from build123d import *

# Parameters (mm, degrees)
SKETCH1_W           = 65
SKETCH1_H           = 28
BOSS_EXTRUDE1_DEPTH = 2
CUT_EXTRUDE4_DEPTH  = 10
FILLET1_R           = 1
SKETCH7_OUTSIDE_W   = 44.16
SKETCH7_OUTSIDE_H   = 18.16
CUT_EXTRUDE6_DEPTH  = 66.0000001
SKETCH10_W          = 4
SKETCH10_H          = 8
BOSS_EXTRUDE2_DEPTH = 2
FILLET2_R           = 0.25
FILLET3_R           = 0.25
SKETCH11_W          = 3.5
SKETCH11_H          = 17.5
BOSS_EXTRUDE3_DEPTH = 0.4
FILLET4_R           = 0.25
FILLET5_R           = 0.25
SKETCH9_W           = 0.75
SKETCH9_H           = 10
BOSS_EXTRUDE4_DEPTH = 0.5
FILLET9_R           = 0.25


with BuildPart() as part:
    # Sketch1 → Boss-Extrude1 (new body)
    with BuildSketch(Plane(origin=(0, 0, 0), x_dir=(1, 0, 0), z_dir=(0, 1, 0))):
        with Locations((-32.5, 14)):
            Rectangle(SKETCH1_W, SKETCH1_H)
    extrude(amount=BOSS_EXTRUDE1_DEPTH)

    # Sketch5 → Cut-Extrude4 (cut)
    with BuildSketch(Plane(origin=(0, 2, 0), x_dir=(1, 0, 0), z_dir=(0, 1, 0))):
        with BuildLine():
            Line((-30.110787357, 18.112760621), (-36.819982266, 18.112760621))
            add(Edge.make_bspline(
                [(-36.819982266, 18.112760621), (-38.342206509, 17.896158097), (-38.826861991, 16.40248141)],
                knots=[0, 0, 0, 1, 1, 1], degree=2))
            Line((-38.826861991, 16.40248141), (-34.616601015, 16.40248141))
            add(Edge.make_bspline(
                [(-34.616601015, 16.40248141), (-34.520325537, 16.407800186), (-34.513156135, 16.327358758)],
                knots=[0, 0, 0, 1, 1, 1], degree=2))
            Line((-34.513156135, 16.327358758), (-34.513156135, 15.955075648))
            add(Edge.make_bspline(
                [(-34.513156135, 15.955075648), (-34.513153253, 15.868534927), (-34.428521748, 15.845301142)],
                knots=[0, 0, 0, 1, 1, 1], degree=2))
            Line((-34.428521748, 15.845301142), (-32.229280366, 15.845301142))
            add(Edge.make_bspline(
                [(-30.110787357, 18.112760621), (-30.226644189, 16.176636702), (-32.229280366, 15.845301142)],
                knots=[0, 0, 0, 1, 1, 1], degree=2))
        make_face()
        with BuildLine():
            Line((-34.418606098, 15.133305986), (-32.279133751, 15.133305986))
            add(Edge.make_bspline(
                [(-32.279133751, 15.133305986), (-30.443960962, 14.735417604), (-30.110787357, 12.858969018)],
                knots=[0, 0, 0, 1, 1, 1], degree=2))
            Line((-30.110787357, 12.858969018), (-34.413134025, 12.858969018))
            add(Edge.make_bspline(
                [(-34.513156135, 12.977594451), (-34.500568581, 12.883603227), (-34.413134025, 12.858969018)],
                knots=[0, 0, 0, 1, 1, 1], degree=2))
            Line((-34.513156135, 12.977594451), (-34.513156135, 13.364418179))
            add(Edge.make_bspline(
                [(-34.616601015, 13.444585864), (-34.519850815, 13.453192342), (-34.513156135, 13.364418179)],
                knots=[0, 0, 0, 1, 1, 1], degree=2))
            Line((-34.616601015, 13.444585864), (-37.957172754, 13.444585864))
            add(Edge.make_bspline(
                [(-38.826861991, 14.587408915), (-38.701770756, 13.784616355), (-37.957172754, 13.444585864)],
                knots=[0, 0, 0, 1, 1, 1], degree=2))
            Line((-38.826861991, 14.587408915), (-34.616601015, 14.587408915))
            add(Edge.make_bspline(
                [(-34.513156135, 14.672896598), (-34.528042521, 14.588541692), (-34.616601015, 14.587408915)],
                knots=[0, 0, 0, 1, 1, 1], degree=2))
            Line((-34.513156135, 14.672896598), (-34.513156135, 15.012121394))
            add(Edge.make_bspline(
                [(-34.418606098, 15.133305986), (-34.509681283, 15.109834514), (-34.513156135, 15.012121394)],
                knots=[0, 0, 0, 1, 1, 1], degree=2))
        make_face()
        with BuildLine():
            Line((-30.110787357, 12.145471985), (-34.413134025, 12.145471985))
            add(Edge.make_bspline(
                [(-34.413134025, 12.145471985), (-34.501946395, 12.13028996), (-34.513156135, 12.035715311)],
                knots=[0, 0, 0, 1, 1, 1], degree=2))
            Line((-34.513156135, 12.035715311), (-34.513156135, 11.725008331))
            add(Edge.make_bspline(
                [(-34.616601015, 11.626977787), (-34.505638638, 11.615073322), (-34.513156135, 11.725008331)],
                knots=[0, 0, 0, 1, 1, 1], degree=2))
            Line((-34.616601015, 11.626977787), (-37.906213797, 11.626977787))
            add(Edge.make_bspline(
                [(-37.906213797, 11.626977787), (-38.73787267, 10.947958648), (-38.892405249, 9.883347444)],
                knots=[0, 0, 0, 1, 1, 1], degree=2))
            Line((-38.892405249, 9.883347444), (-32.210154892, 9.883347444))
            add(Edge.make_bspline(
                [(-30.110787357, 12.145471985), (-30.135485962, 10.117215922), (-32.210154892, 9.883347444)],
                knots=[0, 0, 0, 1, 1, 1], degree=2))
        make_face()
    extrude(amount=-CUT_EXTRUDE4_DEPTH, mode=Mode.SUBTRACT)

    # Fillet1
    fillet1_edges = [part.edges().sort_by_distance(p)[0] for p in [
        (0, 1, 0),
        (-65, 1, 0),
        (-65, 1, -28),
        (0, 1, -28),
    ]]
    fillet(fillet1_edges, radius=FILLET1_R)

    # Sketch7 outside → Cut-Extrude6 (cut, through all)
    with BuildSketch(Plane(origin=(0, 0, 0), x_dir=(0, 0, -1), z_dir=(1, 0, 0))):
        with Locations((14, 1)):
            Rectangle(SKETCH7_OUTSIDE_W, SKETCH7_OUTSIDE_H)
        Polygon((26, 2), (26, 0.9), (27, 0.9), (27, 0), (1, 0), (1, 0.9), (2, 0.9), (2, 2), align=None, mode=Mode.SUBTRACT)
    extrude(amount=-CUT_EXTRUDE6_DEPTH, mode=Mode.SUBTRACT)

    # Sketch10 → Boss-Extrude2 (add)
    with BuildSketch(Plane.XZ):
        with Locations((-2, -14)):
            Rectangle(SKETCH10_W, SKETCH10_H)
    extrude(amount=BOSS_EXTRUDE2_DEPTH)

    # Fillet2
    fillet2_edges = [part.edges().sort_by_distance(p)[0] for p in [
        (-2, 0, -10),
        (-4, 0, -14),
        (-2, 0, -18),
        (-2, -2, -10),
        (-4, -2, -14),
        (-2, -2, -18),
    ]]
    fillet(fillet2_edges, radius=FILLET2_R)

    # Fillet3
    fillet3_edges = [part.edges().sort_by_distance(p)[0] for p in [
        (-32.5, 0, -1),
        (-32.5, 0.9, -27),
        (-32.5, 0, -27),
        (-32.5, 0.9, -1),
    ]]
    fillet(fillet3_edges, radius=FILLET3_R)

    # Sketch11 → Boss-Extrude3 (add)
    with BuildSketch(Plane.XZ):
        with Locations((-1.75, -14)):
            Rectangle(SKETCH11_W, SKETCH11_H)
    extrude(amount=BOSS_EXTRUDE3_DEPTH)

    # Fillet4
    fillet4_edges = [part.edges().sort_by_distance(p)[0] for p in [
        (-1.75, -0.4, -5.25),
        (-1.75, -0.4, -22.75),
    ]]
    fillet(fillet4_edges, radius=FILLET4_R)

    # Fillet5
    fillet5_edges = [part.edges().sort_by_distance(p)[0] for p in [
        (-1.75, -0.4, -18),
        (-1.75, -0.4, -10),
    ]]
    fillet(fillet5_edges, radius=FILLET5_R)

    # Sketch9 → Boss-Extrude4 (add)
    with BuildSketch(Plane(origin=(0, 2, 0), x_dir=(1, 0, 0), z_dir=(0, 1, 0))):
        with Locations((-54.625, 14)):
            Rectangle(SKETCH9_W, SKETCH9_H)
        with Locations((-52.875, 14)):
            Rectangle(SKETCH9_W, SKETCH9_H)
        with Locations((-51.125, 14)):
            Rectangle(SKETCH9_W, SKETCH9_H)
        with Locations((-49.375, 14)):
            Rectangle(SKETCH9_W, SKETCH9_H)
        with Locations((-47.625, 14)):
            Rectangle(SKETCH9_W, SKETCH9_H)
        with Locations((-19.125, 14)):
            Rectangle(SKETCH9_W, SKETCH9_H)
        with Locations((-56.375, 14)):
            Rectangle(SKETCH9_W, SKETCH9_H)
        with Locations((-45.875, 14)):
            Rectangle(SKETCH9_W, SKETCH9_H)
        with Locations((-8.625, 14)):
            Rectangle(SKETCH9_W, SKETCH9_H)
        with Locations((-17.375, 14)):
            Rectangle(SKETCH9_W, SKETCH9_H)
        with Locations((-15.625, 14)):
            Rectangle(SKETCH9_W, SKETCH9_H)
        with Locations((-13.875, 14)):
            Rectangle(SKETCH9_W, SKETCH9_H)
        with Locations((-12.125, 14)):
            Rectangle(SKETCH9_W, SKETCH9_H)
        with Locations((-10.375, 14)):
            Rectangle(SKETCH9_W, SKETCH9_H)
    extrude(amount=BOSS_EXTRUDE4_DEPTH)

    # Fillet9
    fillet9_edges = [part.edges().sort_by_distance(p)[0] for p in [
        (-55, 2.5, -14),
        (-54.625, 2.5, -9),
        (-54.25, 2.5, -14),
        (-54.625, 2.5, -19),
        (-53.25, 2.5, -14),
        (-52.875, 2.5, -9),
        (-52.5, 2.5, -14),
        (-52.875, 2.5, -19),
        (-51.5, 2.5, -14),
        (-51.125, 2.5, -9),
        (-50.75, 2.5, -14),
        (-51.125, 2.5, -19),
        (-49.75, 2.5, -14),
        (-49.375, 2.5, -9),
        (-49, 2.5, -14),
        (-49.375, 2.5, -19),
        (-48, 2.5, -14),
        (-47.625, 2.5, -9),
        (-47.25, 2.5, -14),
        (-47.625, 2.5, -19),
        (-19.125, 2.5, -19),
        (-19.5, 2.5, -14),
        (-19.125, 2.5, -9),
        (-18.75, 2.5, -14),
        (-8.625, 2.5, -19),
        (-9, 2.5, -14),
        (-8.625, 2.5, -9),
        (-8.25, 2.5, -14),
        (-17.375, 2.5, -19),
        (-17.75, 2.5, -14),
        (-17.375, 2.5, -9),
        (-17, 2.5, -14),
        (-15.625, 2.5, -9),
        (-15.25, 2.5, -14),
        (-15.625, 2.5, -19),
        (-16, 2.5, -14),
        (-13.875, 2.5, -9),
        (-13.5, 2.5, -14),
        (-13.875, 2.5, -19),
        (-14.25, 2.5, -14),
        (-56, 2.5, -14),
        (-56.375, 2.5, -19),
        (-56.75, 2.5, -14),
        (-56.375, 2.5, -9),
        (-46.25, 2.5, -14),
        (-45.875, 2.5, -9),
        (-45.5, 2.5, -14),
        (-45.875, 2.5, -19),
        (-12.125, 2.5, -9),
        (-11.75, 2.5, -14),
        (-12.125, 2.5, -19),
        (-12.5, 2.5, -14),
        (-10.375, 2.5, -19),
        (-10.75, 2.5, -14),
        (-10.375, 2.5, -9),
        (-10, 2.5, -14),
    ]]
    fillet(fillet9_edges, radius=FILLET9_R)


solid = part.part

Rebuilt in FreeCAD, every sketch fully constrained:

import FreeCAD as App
import Part
import Sketcher
Q = App.Units.Quantity


def edges_at(feature, points):
    """Names of the edges that pass closest to the given points."""
    edges = feature.Shape.Edges
    near = lambda p: min(range(len(edges)), key=lambda i: edges[i].distToShape(Part.Vertex(*p))[0])
    return sorted({f"Edge{near(p) + 1}" for p in points})

doc = App.newDocument("Part")
body = doc.addObject("PartDesign::Body", "Body")

# Sketch on XZ plane
sketch1 = doc.addObject("Sketcher::SketchObject", "Sketch")
body.addObject(sketch1)
sketch1.AttachmentSupport = (doc.XZ_Plane, [""])
sketch1.MapMode = "FlatFace"
sketch1.addGeometry(Part.LineSegment(App.Vector(-65, -28, 0), App.Vector(-65, 0, 0)), False)
sketch1.addGeometry(Part.LineSegment(App.Vector(-65, 0, 0), App.Vector(0, 0, 0)), False)
sketch1.addGeometry(Part.LineSegment(App.Vector(0, 0, 0), App.Vector(0, -28, 0)), False)
sketch1.addGeometry(Part.LineSegment(App.Vector(0, -28, 0), App.Vector(-65, -28, 0)), False)
sketch1.addConstraint(Sketcher.Constraint("Coincident", 0, 2, 1, 1))
sketch1.addConstraint(Sketcher.Constraint("Coincident", 1, 2, 2, 1))
sketch1.addConstraint(Sketcher.Constraint("Coincident", 2, 2, 3, 1))
sketch1.addConstraint(Sketcher.Constraint("Coincident", 3, 2, 0, 1))
sketch1.addConstraint(Sketcher.Constraint("Vertical", 0))
sketch1.addConstraint(Sketcher.Constraint("Horizontal", 1))
sketch1.addConstraint(Sketcher.Constraint("Vertical", 2))
sketch1.addConstraint(Sketcher.Constraint("Horizontal", 3))
sketch1.addConstraint(Sketcher.Constraint("Coincident", 1, 2, -1, 1))
sketch1.addConstraint(Sketcher.Constraint("DistanceX", 1, 1, 1, 2, Q("65 mm")))
sketch1.addConstraint(Sketcher.Constraint("DistanceY", 0, 1, 0, 2, Q("28 mm")))
pad1 = doc.addObject("PartDesign::Pad", "Pad")
body.addObject(pad1)
pad1.Profile = sketch1
pad1.Length = 2
pad1.Reversed = True

# Sketch on XZ plane
sketch2 = doc.addObject("Sketcher::SketchObject", "Sketch001")
body.addObject(sketch2)
sketch2.AttachmentSupport = (doc.XZ_Plane, [""])
sketch2.MapMode = "FlatFace"
sketch2.AttachmentOffset = App.Placement(App.Vector(0, 0, -2), App.Rotation())
sketch2.addGeometry(Part.LineSegment(App.Vector(-30.110787, -18.112761, 0), App.Vector(-36.819982, -18.112761, 0)), False)
sketch2.addGeometry(Part.BSplineCurve([App.Vector(-36.819982, -18.112761, 0), App.Vector(-38.342207, -17.896158, 0), App.Vector(-38.826862, -16.402481, 0)], [3, 3], [0, 1], False, 2, [1, 1, 1], False), False)
sketch2.addGeometry(Part.LineSegment(App.Vector(-38.826862, -16.402481, 0), App.Vector(-34.616601, -16.402481, 0)), False)
sketch2.addGeometry(Part.BSplineCurve([App.Vector(-34.616601, -16.402481, 0), App.Vector(-34.520326, -16.4078, 0), App.Vector(-34.513156, -16.327359, 0)], [3, 3], [0, 1], False, 2, [1, 1, 1], False), False)
sketch2.addGeometry(Part.LineSegment(App.Vector(-34.513156, -16.327359, 0), App.Vector(-34.513156, -15.955076, 0)), False)
sketch2.addGeometry(Part.BSplineCurve([App.Vector(-34.513156, -15.955076, 0), App.Vector(-34.513153, -15.868535, 0), App.Vector(-34.428522, -15.845301, 0)], [3, 3], [0, 1], False, 2, [1, 1, 1], False), False)
sketch2.addGeometry(Part.LineSegment(App.Vector(-34.428522, -15.845301, 0), App.Vector(-32.22928, -15.845301, 0)), False)
sketch2.addGeometry(Part.BSplineCurve([App.Vector(-30.110787, -18.112761, 0), App.Vector(-30.226644, -16.176637, 0), App.Vector(-32.22928, -15.845301, 0)], [3, 3], [0, 1], False, 2, [1, 1, 1], False), False)
sketch2.addGeometry(Part.LineSegment(App.Vector(-32.279134, -15.133306, 0), App.Vector(-34.418606, -15.133306, 0)), False)
sketch2.addGeometry(Part.BSplineCurve([App.Vector(-34.418606, -15.133306, 0), App.Vector(-34.509681, -15.109835, 0), App.Vector(-34.513156, -15.012121, 0)], [3, 3], [0, 1], False, 2, [1, 1, 1], False), False)
sketch2.addGeometry(Part.LineSegment(App.Vector(-34.513156, -15.012121, 0), App.Vector(-34.513156, -14.672897, 0)), False)
sketch2.addGeometry(Part.BSplineCurve([App.Vector(-34.513156, -14.672897, 0), App.Vector(-34.528043, -14.588542, 0), App.Vector(-34.616601, -14.587409, 0)], [3, 3], [0, 1], False, 2, [1, 1, 1], False), False)
sketch2.addGeometry(Part.LineSegment(App.Vector(-34.616601, -14.587409, 0), App.Vector(-38.826862, -14.587409, 0)), False)
sketch2.addGeometry(Part.BSplineCurve([App.Vector(-38.826862, -14.587409, 0), App.Vector(-38.701771, -13.784616, 0), App.Vector(-37.957173, -13.444586, 0)], [3, 3], [0, 1], False, 2, [1, 1, 1], False), False)
sketch2.addGeometry(Part.LineSegment(App.Vector(-37.957173, -13.444586, 0), App.Vector(-34.616601, -13.444586, 0)), False)
sketch2.addGeometry(Part.BSplineCurve([App.Vector(-34.616601, -13.444586, 0), App.Vector(-34.519851, -13.453192, 0), App.Vector(-34.513156, -13.364418, 0)], [3, 3], [0, 1], False, 2, [1, 1, 1], False), False)
sketch2.addGeometry(Part.LineSegment(App.Vector(-34.513156, -13.364418, 0), App.Vector(-34.513156, -12.977594, 0)), False)
sketch2.addGeometry(Part.BSplineCurve([App.Vector(-34.513156, -12.977594, 0), App.Vector(-34.500569, -12.883603, 0), App.Vector(-34.413134, -12.858969, 0)], [3, 3], [0, 1], False, 2, [1, 1, 1], False), False)
sketch2.addGeometry(Part.LineSegment(App.Vector(-34.413134, -12.858969, 0), App.Vector(-30.110787, -12.858969, 0)), False)
sketch2.addGeometry(Part.BSplineCurve([App.Vector(-32.279134, -15.133306, 0), App.Vector(-30.443961, -14.735418, 0), App.Vector(-30.110787, -12.858969, 0)], [3, 3], [0, 1], False, 2, [1, 1, 1], False), False)
sketch2.addGeometry(Part.LineSegment(App.Vector(-30.110787, -12.145472, 0), App.Vector(-34.413134, -12.145472, 0)), False)
sketch2.addGeometry(Part.BSplineCurve([App.Vector(-34.413134, -12.145472, 0), App.Vector(-34.501946, -12.13029, 0), App.Vector(-34.513156, -12.035715, 0)], [3, 3], [0, 1], False, 2, [1, 1, 1], False), False)
sketch2.addGeometry(Part.LineSegment(App.Vector(-34.513156, -12.035715, 0), App.Vector(-34.513156, -11.725008, 0)), False)
sketch2.addGeometry(Part.BSplineCurve([App.Vector(-34.616601, -11.626978, 0), App.Vector(-34.505639, -11.615073, 0), App.Vector(-34.513156, -11.725008, 0)], [3, 3], [0, 1], False, 2, [1, 1, 1], False), False)
sketch2.addGeometry(Part.LineSegment(App.Vector(-34.616601, -11.626978, 0), App.Vector(-37.906214, -11.626978, 0)), False)
sketch2.addGeometry(Part.BSplineCurve([App.Vector(-37.906214, -11.626978, 0), App.Vector(-38.737873, -10.947959, 0), App.Vector(-38.892405, -9.883347, 0)], [3, 3], [0, 1], False, 2, [1, 1, 1], False), False)
sketch2.addGeometry(Part.LineSegment(App.Vector(-38.892405, -9.883347, 0), App.Vector(-32.210155, -9.883347, 0)), False)
sketch2.addGeometry(Part.BSplineCurve([App.Vector(-30.110787, -12.145472, 0), App.Vector(-30.135486, -10.117216, 0), App.Vector(-32.210155, -9.883347, 0)], [3, 3], [0, 1], False, 2, [1, 1, 1], False), False)
sketch2.addConstraint(Sketcher.Constraint("Block", 1))
sketch2.addConstraint(Sketcher.Constraint("Block", 3))
sketch2.addConstraint(Sketcher.Constraint("Block", 5))
sketch2.addConstraint(Sketcher.Constraint("Block", 7))
sketch2.addConstraint(Sketcher.Constraint("Block", 9))
sketch2.addConstraint(Sketcher.Constraint("Block", 11))
sketch2.addConstraint(Sketcher.Constraint("Block", 13))
sketch2.addConstraint(Sketcher.Constraint("Block", 15))
sketch2.addConstraint(Sketcher.Constraint("Block", 17))
sketch2.addConstraint(Sketcher.Constraint("Block", 19))
sketch2.addConstraint(Sketcher.Constraint("Block", 21))
sketch2.addConstraint(Sketcher.Constraint("Block", 23))
sketch2.addConstraint(Sketcher.Constraint("Block", 25))
sketch2.addConstraint(Sketcher.Constraint("Block", 27))
sketch2.addConstraint(Sketcher.Constraint("Coincident", 0, 2, 1, 1))
sketch2.addConstraint(Sketcher.Constraint("Coincident", 1, 2, 2, 1))
sketch2.addConstraint(Sketcher.Constraint("Coincident", 2, 2, 3, 1))
sketch2.addConstraint(Sketcher.Constraint("Coincident", 3, 2, 4, 1))
sketch2.addConstraint(Sketcher.Constraint("Coincident", 4, 2, 5, 1))
sketch2.addConstraint(Sketcher.Constraint("Coincident", 5, 2, 6, 1))
sketch2.addConstraint(Sketcher.Constraint("Coincident", 6, 2, 7, 2))
sketch2.addConstraint(Sketcher.Constraint("Coincident", 7, 1, 0, 1))
sketch2.addConstraint(Sketcher.Constraint("Coincident", 8, 2, 9, 1))
sketch2.addConstraint(Sketcher.Constraint("Coincident", 9, 2, 10, 1))
sketch2.addConstraint(Sketcher.Constraint("Coincident", 10, 2, 11, 1))
sketch2.addConstraint(Sketcher.Constraint("Coincident", 11, 2, 12, 1))
sketch2.addConstraint(Sketcher.Constraint("Coincident", 12, 2, 13, 1))
sketch2.addConstraint(Sketcher.Constraint("Coincident", 13, 2, 14, 1))
sketch2.addConstraint(Sketcher.Constraint("Coincident", 14, 2, 15, 1))
sketch2.addConstraint(Sketcher.Constraint("Coincident", 15, 2, 16, 1))
sketch2.addConstraint(Sketcher.Constraint("Coincident", 16, 2, 17, 1))
sketch2.addConstraint(Sketcher.Constraint("Coincident", 17, 2, 18, 1))
sketch2.addConstraint(Sketcher.Constraint("Coincident", 18, 2, 19, 2))
sketch2.addConstraint(Sketcher.Constraint("Coincident", 19, 1, 8, 1))
sketch2.addConstraint(Sketcher.Constraint("Coincident", 20, 2, 21, 1))
sketch2.addConstraint(Sketcher.Constraint("Coincident", 21, 2, 22, 1))
sketch2.addConstraint(Sketcher.Constraint("Coincident", 22, 2, 23, 2))
sketch2.addConstraint(Sketcher.Constraint("Coincident", 23, 1, 24, 1))
sketch2.addConstraint(Sketcher.Constraint("Coincident", 24, 2, 25, 1))
sketch2.addConstraint(Sketcher.Constraint("Coincident", 25, 2, 26, 1))
sketch2.addConstraint(Sketcher.Constraint("Coincident", 26, 2, 27, 2))
sketch2.addConstraint(Sketcher.Constraint("Coincident", 27, 1, 20, 1))
pocket1 = doc.addObject("PartDesign::Pocket", "Pocket")
body.addObject(pocket1)
pocket1.Profile = sketch2
pocket1.Length = 10
pocket1.Reversed = True
doc.recompute()

fillet = doc.addObject("PartDesign::Fillet", "Fillet")
body.addObject(fillet)
fillet.Base = (pocket1, edges_at(pocket1, [
    (0, 1, 0),
    (-65, 1, 0),
    (-65, 1, -28),
    (0, 1, -28),
]))
fillet.Radius = 1

# Sketch on YZ plane
sketch3 = doc.addObject("Sketcher::SketchObject", "Sketch002")
body.addObject(sketch3)
sketch3.AttachmentSupport = (doc.YZ_Plane, [""])
sketch3.MapMode = "FlatFace"
sketch3.addGeometry(Part.LineSegment(App.Vector(10.1, 8.1, 0), App.Vector(-8.1, 8.1, 0)), False)
sketch3.addGeometry(Part.LineSegment(App.Vector(-8.1, 8.1, 0), App.Vector(-8.1, -36.1, 0)), False)
sketch3.addGeometry(Part.LineSegment(App.Vector(-8.1, -36.1, 0), App.Vector(10.1, -36.1, 0)), False)
sketch3.addGeometry(Part.LineSegment(App.Vector(10.1, -36.1, 0), App.Vector(10.1, 8.1, 0)), False)
sketch3.addGeometry(Part.LineSegment(App.Vector(2, -2, 0), App.Vector(2, -26, 0)), False)
sketch3.addGeometry(Part.LineSegment(App.Vector(2, -26, 0), App.Vector(0.9, -26, 0)), False)
sketch3.addGeometry(Part.LineSegment(App.Vector(0.9, -26, 0), App.Vector(0.9, -27, 0)), False)
sketch3.addGeometry(Part.LineSegment(App.Vector(0.9, -27, 0), App.Vector(0, -27, 0)), False)
sketch3.addGeometry(Part.LineSegment(App.Vector(0, -27, 0), App.Vector(0, -1, 0)), False)
sketch3.addGeometry(Part.LineSegment(App.Vector(0, -1, 0), App.Vector(0.9, -1, 0)), False)
sketch3.addGeometry(Part.LineSegment(App.Vector(0.9, -1, 0), App.Vector(0.9, -2, 0)), False)
sketch3.addGeometry(Part.LineSegment(App.Vector(0.9, -2, 0), App.Vector(2, -2, 0)), False)
sketch3.addConstraint(Sketcher.Constraint("Coincident", 0, 2, 1, 1))
sketch3.addConstraint(Sketcher.Constraint("Coincident", 1, 2, 2, 1))
sketch3.addConstraint(Sketcher.Constraint("Coincident", 2, 2, 3, 1))
sketch3.addConstraint(Sketcher.Constraint("Coincident", 3, 2, 0, 1))
sketch3.addConstraint(Sketcher.Constraint("Coincident", 4, 2, 5, 1))
sketch3.addConstraint(Sketcher.Constraint("Coincident", 5, 2, 6, 1))
sketch3.addConstraint(Sketcher.Constraint("Coincident", 6, 2, 7, 1))
sketch3.addConstraint(Sketcher.Constraint("Coincident", 7, 2, 8, 1))
sketch3.addConstraint(Sketcher.Constraint("Coincident", 8, 2, 9, 1))
sketch3.addConstraint(Sketcher.Constraint("Coincident", 9, 2, 10, 1))
sketch3.addConstraint(Sketcher.Constraint("Coincident", 10, 2, 11, 1))
sketch3.addConstraint(Sketcher.Constraint("Coincident", 11, 2, 4, 1))
sketch3.addConstraint(Sketcher.Constraint("Horizontal", 0))
sketch3.addConstraint(Sketcher.Constraint("Vertical", 1))
sketch3.addConstraint(Sketcher.Constraint("Horizontal", 2))
sketch3.addConstraint(Sketcher.Constraint("Vertical", 3))
sketch3.addConstraint(Sketcher.Constraint("Vertical", 4))
sketch3.addConstraint(Sketcher.Constraint("Horizontal", 5))
sketch3.addConstraint(Sketcher.Constraint("Vertical", 6))
sketch3.addConstraint(Sketcher.Constraint("Horizontal", 7))
sketch3.addConstraint(Sketcher.Constraint("Vertical", 8))
sketch3.addConstraint(Sketcher.Constraint("Horizontal", 9))
sketch3.addConstraint(Sketcher.Constraint("Vertical", 10))
sketch3.addConstraint(Sketcher.Constraint("Horizontal", 11))
sketch3.addConstraint(Sketcher.Constraint("PointOnObject", 7, 2, -2))
sketch3.addConstraint(Sketcher.Constraint("Vertical", 6, 2, 9, 2))
sketch3.addConstraint(Sketcher.Constraint("Equal", 6, 10))
sketch3.addConstraint(Sketcher.Constraint("DistanceY", 4, 2, 4, 1, Q("24 mm")))
sketch3.addConstraint(Sketcher.Constraint("DistanceY", 6, 2, 6, 1, Q("1 mm")))
sketch3.addConstraint(Sketcher.Constraint("DistanceX", 5, 2, 5, 1, Q("1.1 mm")))
sketch3.addConstraint(Sketcher.Constraint("DistanceX", 7, 2, 7, 1, Q("0.9 mm")))
sketch3.addConstraint(Sketcher.Constraint("DistanceY", 4, 2, -1, 1, Q("26 mm")))
sketch3.addConstraint(Sketcher.Constraint("DistanceX", 0, 2, 0, 1, Q("18.16 mm")))
sketch3.addConstraint(Sketcher.Constraint("DistanceY", 1, 2, 1, 1, Q("44.16 mm")))
sketch3.addConstraint(Sketcher.Constraint("DistanceX", 0, 2, -1, 1, Q("8.08 mm")))
sketch3.addConstraint(Sketcher.Constraint("DistanceY", -1, 1, 0, 2, Q("8.08 mm")))
pocket2 = doc.addObject("PartDesign::Pocket", "Pocket001")
body.addObject(pocket2)
pocket2.Profile = sketch3
pocket2.Type = "ThroughAll"

# Sketch on XZ plane
sketch4 = doc.addObject("Sketcher::SketchObject", "Sketch003")
body.addObject(sketch4)
sketch4.AttachmentSupport = (doc.XZ_Plane, [""])
sketch4.MapMode = "FlatFace"
sketch4.addGeometry(Part.LineSegment(App.Vector(-4, -10, 0), App.Vector(-4, -18, 0)), False)
sketch4.addGeometry(Part.LineSegment(App.Vector(-4, -18, 0), App.Vector(0, -18, 0)), False)
sketch4.addGeometry(Part.LineSegment(App.Vector(0, -18, 0), App.Vector(0, -10, 0)), False)
sketch4.addGeometry(Part.LineSegment(App.Vector(0, -10, 0), App.Vector(-4, -10, 0)), False)
sketch4.addConstraint(Sketcher.Constraint("Coincident", 0, 2, 1, 1))
sketch4.addConstraint(Sketcher.Constraint("Coincident", 1, 2, 2, 1))
sketch4.addConstraint(Sketcher.Constraint("Coincident", 2, 2, 3, 1))
sketch4.addConstraint(Sketcher.Constraint("Coincident", 3, 2, 0, 1))
sketch4.addConstraint(Sketcher.Constraint("Vertical", 0))
sketch4.addConstraint(Sketcher.Constraint("Horizontal", 1))
sketch4.addConstraint(Sketcher.Constraint("Vertical", 2))
sketch4.addConstraint(Sketcher.Constraint("Horizontal", 3))
sketch4.addConstraint(Sketcher.Constraint("PointOnObject", 1, 2, -2))
sketch4.addConstraint(Sketcher.Constraint("DistanceX", 1, 1, 1, 2, Q("4 mm")))
sketch4.addConstraint(Sketcher.Constraint("DistanceY", 0, 2, 0, 1, Q("8 mm")))
sketch4.addConstraint(Sketcher.Constraint("DistanceY", 0, 2, -1, 1, Q("18 mm")))
pad2 = doc.addObject("PartDesign::Pad", "Pad001")
body.addObject(pad2)
pad2.Profile = sketch4
pad2.Length = 2
doc.recompute()

fillet2 = doc.addObject("PartDesign::Fillet", "Fillet001")
body.addObject(fillet2)
fillet2.Base = (pad2, edges_at(pad2, [
    (-2, 0, -10),
    (-4, 0, -14),
    (-2, 0, -18),
    (-2, -2, -10),
    (-4, -2, -14),
    (-2, -2, -18),
]))
fillet2.Radius = 0.25
doc.recompute()

fillet3 = doc.addObject("PartDesign::Fillet", "Fillet002")
body.addObject(fillet3)
fillet3.Base = (fillet2, edges_at(fillet2, [
    (-32.5, 0, -1),
    (-32.5, 0.9, -27),
    (-32.5, 0, -27),
    (-32.5, 0.9, -1),
]))
fillet3.Radius = 0.25

# Sketch on XZ plane
sketch5 = doc.addObject("Sketcher::SketchObject", "Sketch004")
body.addObject(sketch5)
sketch5.AttachmentSupport = (doc.XZ_Plane, [""])
sketch5.MapMode = "FlatFace"
sketch5.addGeometry(Part.LineSegment(App.Vector(-3.5, -5.2, 0), App.Vector(-3.5, -22.8, 0)), False)
sketch5.addGeometry(Part.LineSegment(App.Vector(-3.5, -22.8, 0), App.Vector(0, -22.8, 0)), False)
sketch5.addGeometry(Part.LineSegment(App.Vector(0, -22.8, 0), App.Vector(0, -5.2, 0)), False)
sketch5.addGeometry(Part.LineSegment(App.Vector(0, -5.2, 0), App.Vector(-3.5, -5.2, 0)), False)
sketch5.addConstraint(Sketcher.Constraint("Coincident", 0, 2, 1, 1))
sketch5.addConstraint(Sketcher.Constraint("Coincident", 1, 2, 2, 1))
sketch5.addConstraint(Sketcher.Constraint("Coincident", 2, 2, 3, 1))
sketch5.addConstraint(Sketcher.Constraint("Coincident", 3, 2, 0, 1))
sketch5.addConstraint(Sketcher.Constraint("Vertical", 0))
sketch5.addConstraint(Sketcher.Constraint("Horizontal", 1))
sketch5.addConstraint(Sketcher.Constraint("Vertical", 2))
sketch5.addConstraint(Sketcher.Constraint("Horizontal", 3))
sketch5.addConstraint(Sketcher.Constraint("PointOnObject", 1, 2, -2))
sketch5.addConstraint(Sketcher.Constraint("DistanceX", 1, 1, 1, 2, Q("3.5 mm")))
sketch5.addConstraint(Sketcher.Constraint("DistanceY", 0, 2, 0, 1, Q("17.5 mm")))
sketch5.addConstraint(Sketcher.Constraint("DistanceY", 0, 2, -1, 1, Q("22.75 mm")))
pad3 = doc.addObject("PartDesign::Pad", "Pad002")
body.addObject(pad3)
pad3.Profile = sketch5
pad3.Length = 0.4
doc.recompute()

fillet4 = doc.addObject("PartDesign::Fillet", "Fillet003")
body.addObject(fillet4)
fillet4.Base = (pad3, edges_at(pad3, [(-1.75, -0.4, -5.25), (-1.75, -0.4, -22.75)]))
fillet4.Radius = 0.25
doc.recompute()

fillet5 = doc.addObject("PartDesign::Fillet", "Fillet004")
body.addObject(fillet5)
fillet5.Base = (fillet4, edges_at(fillet4, [(-1.75, -0.4, -18), (-1.75, -0.4, -10)]))
fillet5.Radius = 0.25

# Sketch on XZ plane
sketch6 = doc.addObject("Sketcher::SketchObject", "Sketch005")
body.addObject(sketch6)
sketch6.AttachmentSupport = (doc.XZ_Plane, [""])
sketch6.MapMode = "FlatFace"
sketch6.AttachmentOffset = App.Placement(App.Vector(0, 0, -2), App.Rotation())
sketch6.addGeometry(Part.LineSegment(App.Vector(-55, -19, 0), App.Vector(-55, -9, 0)), False)
sketch6.addGeometry(Part.LineSegment(App.Vector(-55, -9, 0), App.Vector(-54.2, -9, 0)), False)
sketch6.addGeometry(Part.LineSegment(App.Vector(-54.2, -9, 0), App.Vector(-54.2, -19, 0)), False)
sketch6.addGeometry(Part.LineSegment(App.Vector(-54.2, -19, 0), App.Vector(-55, -19, 0)), False)
sketch6.addGeometry(Part.LineSegment(App.Vector(-53.2, -19, 0), App.Vector(-53.2, -9, 0)), False)
sketch6.addGeometry(Part.LineSegment(App.Vector(-53.2, -9, 0), App.Vector(-52.5, -9, 0)), False)
sketch6.addGeometry(Part.LineSegment(App.Vector(-52.5, -9, 0), App.Vector(-52.5, -19, 0)), False)
sketch6.addGeometry(Part.LineSegment(App.Vector(-52.5, -19, 0), App.Vector(-53.2, -19, 0)), False)
sketch6.addGeometry(Part.LineSegment(App.Vector(-51.5, -19, 0), App.Vector(-51.5, -9, 0)), False)
sketch6.addGeometry(Part.LineSegment(App.Vector(-51.5, -9, 0), App.Vector(-50.8, -9, 0)), False)
sketch6.addGeometry(Part.LineSegment(App.Vector(-50.8, -9, 0), App.Vector(-50.8, -19, 0)), False)
sketch6.addGeometry(Part.LineSegment(App.Vector(-50.8, -19, 0), App.Vector(-51.5, -19, 0)), False)
sketch6.addGeometry(Part.LineSegment(App.Vector(-49.8, -19, 0), App.Vector(-49.8, -9, 0)), False)
sketch6.addGeometry(Part.LineSegment(App.Vector(-49.8, -9, 0), App.Vector(-49, -9, 0)), False)
sketch6.addGeometry(Part.LineSegment(App.Vector(-49, -9, 0), App.Vector(-49, -19, 0)), False)
sketch6.addGeometry(Part.LineSegment(App.Vector(-49, -19, 0), App.Vector(-49.8, -19, 0)), False)
sketch6.addGeometry(Part.LineSegment(App.Vector(-48, -19, 0), App.Vector(-48, -9, 0)), False)
sketch6.addGeometry(Part.LineSegment(App.Vector(-48, -9, 0), App.Vector(-47.2, -9, 0)), False)
sketch6.addGeometry(Part.LineSegment(App.Vector(-47.2, -9, 0), App.Vector(-47.2, -19, 0)), False)
sketch6.addGeometry(Part.LineSegment(App.Vector(-47.2, -19, 0), App.Vector(-48, -19, 0)), False)
sketch6.addGeometry(Part.LineSegment(App.Vector(-19.5, -19, 0), App.Vector(-19.5, -9, 0)), False)
sketch6.addGeometry(Part.LineSegment(App.Vector(-19.5, -9, 0), App.Vector(-18.8, -9, 0)), False)
sketch6.addGeometry(Part.LineSegment(App.Vector(-18.8, -9, 0), App.Vector(-18.8, -19, 0)), False)
sketch6.addGeometry(Part.LineSegment(App.Vector(-18.8, -19, 0), App.Vector(-19.5, -19, 0)), False)
sketch6.addGeometry(Part.LineSegment(App.Vector(-56.8, -19, 0), App.Vector(-56.8, -9, 0)), False)
sketch6.addGeometry(Part.LineSegment(App.Vector(-56.8, -9, 0), App.Vector(-56, -9, 0)), False)
sketch6.addGeometry(Part.LineSegment(App.Vector(-56, -9, 0), App.Vector(-56, -19, 0)), False)
sketch6.addGeometry(Part.LineSegment(App.Vector(-56, -19, 0), App.Vector(-56.8, -19, 0)), False)
sketch6.addGeometry(Part.LineSegment(App.Vector(-46.2, -19, 0), App.Vector(-46.2, -9, 0)), False)
sketch6.addGeometry(Part.LineSegment(App.Vector(-46.2, -9, 0), App.Vector(-45.5, -9, 0)), False)
sketch6.addGeometry(Part.LineSegment(App.Vector(-45.5, -9, 0), App.Vector(-45.5, -19, 0)), False)
sketch6.addGeometry(Part.LineSegment(App.Vector(-45.5, -19, 0), App.Vector(-46.2, -19, 0)), False)
sketch6.addGeometry(Part.LineSegment(App.Vector(-9, -19, 0), App.Vector(-9, -9, 0)), False)
sketch6.addGeometry(Part.LineSegment(App.Vector(-9, -9, 0), App.Vector(-8.2, -9, 0)), False)
sketch6.addGeometry(Part.LineSegment(App.Vector(-8.2, -9, 0), App.Vector(-8.2, -19, 0)), False)
sketch6.addGeometry(Part.LineSegment(App.Vector(-8.2, -19, 0), App.Vector(-9, -19, 0)), False)
sketch6.addGeometry(Part.LineSegment(App.Vector(-17.8, -19, 0), App.Vector(-17.8, -9, 0)), False)
sketch6.addGeometry(Part.LineSegment(App.Vector(-17.8, -9, 0), App.Vector(-17, -9, 0)), False)
sketch6.addGeometry(Part.LineSegment(App.Vector(-17, -9, 0), App.Vector(-17, -19, 0)), False)
sketch6.addGeometry(Part.LineSegment(App.Vector(-17, -19, 0), App.Vector(-17.8, -19, 0)), False)
sketch6.addGeometry(Part.LineSegment(App.Vector(-16, -19, 0), App.Vector(-16, -9, 0)), False)
sketch6.addGeometry(Part.LineSegment(App.Vector(-16, -9, 0), App.Vector(-15.2, -9, 0)), False)
sketch6.addGeometry(Part.LineSegment(App.Vector(-15.2, -9, 0), App.Vector(-15.2, -19, 0)), False)
sketch6.addGeometry(Part.LineSegment(App.Vector(-15.2, -19, 0), App.Vector(-16, -19, 0)), False)
sketch6.addGeometry(Part.LineSegment(App.Vector(-14.2, -19, 0), App.Vector(-14.2, -9, 0)), False)
sketch6.addGeometry(Part.LineSegment(App.Vector(-14.2, -9, 0), App.Vector(-13.5, -9, 0)), False)
sketch6.addGeometry(Part.LineSegment(App.Vector(-13.5, -9, 0), App.Vector(-13.5, -19, 0)), False)
sketch6.addGeometry(Part.LineSegment(App.Vector(-13.5, -19, 0), App.Vector(-14.2, -19, 0)), False)
sketch6.addGeometry(Part.LineSegment(App.Vector(-12.5, -19, 0), App.Vector(-12.5, -9, 0)), False)
sketch6.addGeometry(Part.LineSegment(App.Vector(-12.5, -9, 0), App.Vector(-11.8, -9, 0)), False)
sketch6.addGeometry(Part.LineSegment(App.Vector(-11.8, -9, 0), App.Vector(-11.8, -19, 0)), False)
sketch6.addGeometry(Part.LineSegment(App.Vector(-11.8, -19, 0), App.Vector(-12.5, -19, 0)), False)
sketch6.addGeometry(Part.LineSegment(App.Vector(-10.8, -19, 0), App.Vector(-10.8, -9, 0)), False)
sketch6.addGeometry(Part.LineSegment(App.Vector(-10.8, -9, 0), App.Vector(-10, -9, 0)), False)
sketch6.addGeometry(Part.LineSegment(App.Vector(-10, -9, 0), App.Vector(-10, -19, 0)), False)
sketch6.addGeometry(Part.LineSegment(App.Vector(-10, -19, 0), App.Vector(-10.8, -19, 0)), False)
sketch6.addConstraint(Sketcher.Constraint("Coincident", 0, 2, 1, 1))
sketch6.addConstraint(Sketcher.Constraint("Coincident", 1, 2, 2, 1))
sketch6.addConstraint(Sketcher.Constraint("Coincident", 2, 2, 3, 1))
sketch6.addConstraint(Sketcher.Constraint("Coincident", 3, 2, 0, 1))
sketch6.addConstraint(Sketcher.Constraint("Coincident", 4, 2, 5, 1))
sketch6.addConstraint(Sketcher.Constraint("Coincident", 5, 2, 6, 1))
sketch6.addConstraint(Sketcher.Constraint("Coincident", 6, 2, 7, 1))
sketch6.addConstraint(Sketcher.Constraint("Coincident", 7, 2, 4, 1))
sketch6.addConstraint(Sketcher.Constraint("Coincident", 8, 2, 9, 1))
sketch6.addConstraint(Sketcher.Constraint("Coincident", 9, 2, 10, 1))
sketch6.addConstraint(Sketcher.Constraint("Coincident", 10, 2, 11, 1))
sketch6.addConstraint(Sketcher.Constraint("Coincident", 11, 2, 8, 1))
sketch6.addConstraint(Sketcher.Constraint("Coincident", 12, 2, 13, 1))
sketch6.addConstraint(Sketcher.Constraint("Coincident", 13, 2, 14, 1))
sketch6.addConstraint(Sketcher.Constraint("Coincident", 14, 2, 15, 1))
sketch6.addConstraint(Sketcher.Constraint("Coincident", 15, 2, 12, 1))
sketch6.addConstraint(Sketcher.Constraint("Coincident", 16, 2, 17, 1))
sketch6.addConstraint(Sketcher.Constraint("Coincident", 17, 2, 18, 1))
sketch6.addConstraint(Sketcher.Constraint("Coincident", 18, 2, 19, 1))
sketch6.addConstraint(Sketcher.Constraint("Coincident", 19, 2, 16, 1))
sketch6.addConstraint(Sketcher.Constraint("Coincident", 20, 2, 21, 1))
sketch6.addConstraint(Sketcher.Constraint("Coincident", 21, 2, 22, 1))
sketch6.addConstraint(Sketcher.Constraint("Coincident", 22, 2, 23, 1))
sketch6.addConstraint(Sketcher.Constraint("Coincident", 23, 2, 20, 1))
sketch6.addConstraint(Sketcher.Constraint("Coincident", 24, 2, 25, 1))
sketch6.addConstraint(Sketcher.Constraint("Coincident", 25, 2, 26, 1))
sketch6.addConstraint(Sketcher.Constraint("Coincident", 26, 2, 27, 1))
sketch6.addConstraint(Sketcher.Constraint("Coincident", 27, 2, 24, 1))
sketch6.addConstraint(Sketcher.Constraint("Coincident", 28, 2, 29, 1))
sketch6.addConstraint(Sketcher.Constraint("Coincident", 29, 2, 30, 1))
sketch6.addConstraint(Sketcher.Constraint("Coincident", 30, 2, 31, 1))
sketch6.addConstraint(Sketcher.Constraint("Coincident", 31, 2, 28, 1))
sketch6.addConstraint(Sketcher.Constraint("Coincident", 32, 2, 33, 1))
sketch6.addConstraint(Sketcher.Constraint("Coincident", 33, 2, 34, 1))
sketch6.addConstraint(Sketcher.Constraint("Coincident", 34, 2, 35, 1))
sketch6.addConstraint(Sketcher.Constraint("Coincident", 35, 2, 32, 1))
sketch6.addConstraint(Sketcher.Constraint("Coincident", 36, 2, 37, 1))
sketch6.addConstraint(Sketcher.Constraint("Coincident", 37, 2, 38, 1))
sketch6.addConstraint(Sketcher.Constraint("Coincident", 38, 2, 39, 1))
sketch6.addConstraint(Sketcher.Constraint("Coincident", 39, 2, 36, 1))
sketch6.addConstraint(Sketcher.Constraint("Coincident", 40, 2, 41, 1))
sketch6.addConstraint(Sketcher.Constraint("Coincident", 41, 2, 42, 1))
sketch6.addConstraint(Sketcher.Constraint("Coincident", 42, 2, 43, 1))
sketch6.addConstraint(Sketcher.Constraint("Coincident", 43, 2, 40, 1))
sketch6.addConstraint(Sketcher.Constraint("Coincident", 44, 2, 45, 1))
sketch6.addConstraint(Sketcher.Constraint("Coincident", 45, 2, 46, 1))
sketch6.addConstraint(Sketcher.Constraint("Coincident", 46, 2, 47, 1))
sketch6.addConstraint(Sketcher.Constraint("Coincident", 47, 2, 44, 1))
sketch6.addConstraint(Sketcher.Constraint("Coincident", 48, 2, 49, 1))
sketch6.addConstraint(Sketcher.Constraint("Coincident", 49, 2, 50, 1))
sketch6.addConstraint(Sketcher.Constraint("Coincident", 50, 2, 51, 1))
sketch6.addConstraint(Sketcher.Constraint("Coincident", 51, 2, 48, 1))
sketch6.addConstraint(Sketcher.Constraint("Coincident", 52, 2, 53, 1))
sketch6.addConstraint(Sketcher.Constraint("Coincident", 53, 2, 54, 1))
sketch6.addConstraint(Sketcher.Constraint("Coincident", 54, 2, 55, 1))
sketch6.addConstraint(Sketcher.Constraint("Coincident", 55, 2, 52, 1))
sketch6.addConstraint(Sketcher.Constraint("Vertical", 0))
sketch6.addConstraint(Sketcher.Constraint("Horizontal", 1))
sketch6.addConstraint(Sketcher.Constraint("Vertical", 2))
sketch6.addConstraint(Sketcher.Constraint("Horizontal", 3))
sketch6.addConstraint(Sketcher.Constraint("Vertical", 4))
sketch6.addConstraint(Sketcher.Constraint("Horizontal", 5))
sketch6.addConstraint(Sketcher.Constraint("Vertical", 6))
sketch6.addConstraint(Sketcher.Constraint("Horizontal", 7))
sketch6.addConstraint(Sketcher.Constraint("Vertical", 8))
sketch6.addConstraint(Sketcher.Constraint("Horizontal", 9))
sketch6.addConstraint(Sketcher.Constraint("Vertical", 10))
sketch6.addConstraint(Sketcher.Constraint("Horizontal", 11))
sketch6.addConstraint(Sketcher.Constraint("Vertical", 12))
sketch6.addConstraint(Sketcher.Constraint("Horizontal", 13))
sketch6.addConstraint(Sketcher.Constraint("Vertical", 14))
sketch6.addConstraint(Sketcher.Constraint("Horizontal", 15))
sketch6.addConstraint(Sketcher.Constraint("Vertical", 16))
sketch6.addConstraint(Sketcher.Constraint("Horizontal", 17))
sketch6.addConstraint(Sketcher.Constraint("Vertical", 18))
sketch6.addConstraint(Sketcher.Constraint("Horizontal", 19))
sketch6.addConstraint(Sketcher.Constraint("Vertical", 20))
sketch6.addConstraint(Sketcher.Constraint("Horizontal", 21))
sketch6.addConstraint(Sketcher.Constraint("Vertical", 22))
sketch6.addConstraint(Sketcher.Constraint("Horizontal", 23))
sketch6.addConstraint(Sketcher.Constraint("Vertical", 24))
sketch6.addConstraint(Sketcher.Constraint("Horizontal", 25))
sketch6.addConstraint(Sketcher.Constraint("Vertical", 26))
sketch6.addConstraint(Sketcher.Constraint("Horizontal", 27))
sketch6.addConstraint(Sketcher.Constraint("Vertical", 28))
sketch6.addConstraint(Sketcher.Constraint("Horizontal", 29))
sketch6.addConstraint(Sketcher.Constraint("Vertical", 30))
sketch6.addConstraint(Sketcher.Constraint("Horizontal", 31))
sketch6.addConstraint(Sketcher.Constraint("Vertical", 32))
sketch6.addConstraint(Sketcher.Constraint("Horizontal", 33))
sketch6.addConstraint(Sketcher.Constraint("Vertical", 34))
sketch6.addConstraint(Sketcher.Constraint("Horizontal", 35))
sketch6.addConstraint(Sketcher.Constraint("Vertical", 36))
sketch6.addConstraint(Sketcher.Constraint("Horizontal", 37))
sketch6.addConstraint(Sketcher.Constraint("Vertical", 38))
sketch6.addConstraint(Sketcher.Constraint("Horizontal", 39))
sketch6.addConstraint(Sketcher.Constraint("Vertical", 40))
sketch6.addConstraint(Sketcher.Constraint("Horizontal", 41))
sketch6.addConstraint(Sketcher.Constraint("Vertical", 42))
sketch6.addConstraint(Sketcher.Constraint("Horizontal", 43))
sketch6.addConstraint(Sketcher.Constraint("Vertical", 44))
sketch6.addConstraint(Sketcher.Constraint("Horizontal", 45))
sketch6.addConstraint(Sketcher.Constraint("Vertical", 46))
sketch6.addConstraint(Sketcher.Constraint("Horizontal", 47))
sketch6.addConstraint(Sketcher.Constraint("Vertical", 48))
sketch6.addConstraint(Sketcher.Constraint("Horizontal", 49))
sketch6.addConstraint(Sketcher.Constraint("Vertical", 50))
sketch6.addConstraint(Sketcher.Constraint("Horizontal", 51))
sketch6.addConstraint(Sketcher.Constraint("Vertical", 52))
sketch6.addConstraint(Sketcher.Constraint("Horizontal", 53))
sketch6.addConstraint(Sketcher.Constraint("Vertical", 54))
sketch6.addConstraint(Sketcher.Constraint("Horizontal", 55))
sketch6.addConstraint(Sketcher.Constraint("Horizontal", 1, 2, 4, 2))
sketch6.addConstraint(Sketcher.Constraint("Horizontal", 3, 2, 6, 2))
sketch6.addConstraint(Sketcher.Constraint("Horizontal", 5, 2, 8, 2))
sketch6.addConstraint(Sketcher.Constraint("Horizontal", 7, 2, 10, 2))
sketch6.addConstraint(Sketcher.Constraint("Horizontal", 9, 2, 12, 2))
sketch6.addConstraint(Sketcher.Constraint("Horizontal", 11, 2, 14, 2))
sketch6.addConstraint(Sketcher.Constraint("Horizontal", 13, 2, 16, 2))
sketch6.addConstraint(Sketcher.Constraint("Horizontal", 15, 2, 18, 2))
sketch6.addConstraint(Sketcher.Constraint("Horizontal", 17, 2, 20, 2))
sketch6.addConstraint(Sketcher.Constraint("Horizontal", 19, 2, 22, 2))
sketch6.addConstraint(Sketcher.Constraint("Horizontal", 21, 2, 24, 2))
sketch6.addConstraint(Sketcher.Constraint("Horizontal", 23, 2, 26, 2))
sketch6.addConstraint(Sketcher.Constraint("Horizontal", 25, 2, 28, 2))
sketch6.addConstraint(Sketcher.Constraint("Horizontal", 27, 2, 30, 2))
sketch6.addConstraint(Sketcher.Constraint("Horizontal", 29, 2, 32, 2))
sketch6.addConstraint(Sketcher.Constraint("Horizontal", 31, 2, 34, 2))
sketch6.addConstraint(Sketcher.Constraint("Horizontal", 33, 2, 36, 2))
sketch6.addConstraint(Sketcher.Constraint("Horizontal", 35, 2, 38, 2))
sketch6.addConstraint(Sketcher.Constraint("Horizontal", 37, 2, 40, 2))
sketch6.addConstraint(Sketcher.Constraint("Horizontal", 39, 2, 42, 2))
sketch6.addConstraint(Sketcher.Constraint("Horizontal", 41, 2, 44, 2))
sketch6.addConstraint(Sketcher.Constraint("Horizontal", 43, 2, 46, 2))
sketch6.addConstraint(Sketcher.Constraint("Horizontal", 45, 2, 48, 2))
sketch6.addConstraint(Sketcher.Constraint("Horizontal", 47, 2, 50, 2))
sketch6.addConstraint(Sketcher.Constraint("Horizontal", 49, 2, 52, 2))
sketch6.addConstraint(Sketcher.Constraint("Horizontal", 51, 2, 54, 2))
sketch6.addConstraint(Sketcher.Constraint("Equal", 3, 5))
sketch6.addConstraint(Sketcher.Constraint("Equal", 7, 9))
sketch6.addConstraint(Sketcher.Constraint("Equal", 11, 13))
sketch6.addConstraint(Sketcher.Constraint("Equal", 15, 17))
sketch6.addConstraint(Sketcher.Constraint("Equal", 19, 21))
sketch6.addConstraint(Sketcher.Constraint("Equal", 23, 25))
sketch6.addConstraint(Sketcher.Constraint("Equal", 27, 29))
sketch6.addConstraint(Sketcher.Constraint("Equal", 31, 33))
sketch6.addConstraint(Sketcher.Constraint("Equal", 35, 37))
sketch6.addConstraint(Sketcher.Constraint("Equal", 39, 41))
sketch6.addConstraint(Sketcher.Constraint("Equal", 43, 45))
sketch6.addConstraint(Sketcher.Constraint("Equal", 47, 49))
sketch6.addConstraint(Sketcher.Constraint("Equal", 51, 53))
sketch6.addConstraint(Sketcher.Constraint("DistanceY", 0, 1, 0, 2, Q("10 mm")))
sketch6.addConstraint(Sketcher.Constraint("DistanceX", 0, 2, -1, 1, Q("55 mm")))
sketch6.addConstraint(Sketcher.Constraint("DistanceY", 0, 2, -1, 1, Q("9 mm")))
sketch6.addConstraint(Sketcher.Constraint("DistanceX", 13, 2, -1, 1, Q("49 mm")))
sketch6.addConstraint(Sketcher.Constraint("DistanceX", 16, 2, -1, 1, Q("48 mm")))
sketch6.addConstraint(Sketcher.Constraint("DistanceX", 25, 2, -1, 1, Q("56 mm")))
sketch6.addConstraint(Sketcher.Constraint("DistanceX", 32, 2, -1, 1, Q("9 mm")))
sketch6.addConstraint(Sketcher.Constraint("DistanceX", 37, 2, -1, 1, Q("17 mm")))
sketch6.addConstraint(Sketcher.Constraint("DistanceX", 40, 2, -1, 1, Q("16 mm")))
sketch6.addConstraint(Sketcher.Constraint("DistanceX", 53, 2, -1, 1, Q("10 mm")))
sketch6.addConstraint(Sketcher.Constraint("DistanceX", 1, 2, 4, 2, Q("1 mm")))
sketch6.addConstraint(Sketcher.Constraint("DistanceX", 5, 2, 8, 2, Q("1 mm")))
sketch6.addConstraint(Sketcher.Constraint("DistanceX", 9, 2, 12, 2, Q("1 mm")))
sketch6.addConstraint(Sketcher.Constraint("DistanceX", 17, 2, 28, 2, Q("1 mm")))
sketch6.addConstraint(Sketcher.Constraint("DistanceX", 21, 2, 36, 2, Q("1 mm")))
sketch6.addConstraint(Sketcher.Constraint("DistanceX", 41, 2, 44, 2, Q("1 mm")))
sketch6.addConstraint(Sketcher.Constraint("DistanceX", 45, 2, 48, 2, Q("1 mm")))
pad4 = doc.addObject("PartDesign::Pad", "Pad003")
body.addObject(pad4)
pad4.Profile = sketch6
pad4.Length = 0.5
pad4.Reversed = True
doc.recompute()

fillet6 = doc.addObject("PartDesign::Fillet", "Fillet005")
body.addObject(fillet6)
fillet6.Base = (pad4, edges_at(pad4, [
    (-55, 2.5, -14),
    (-54.625, 2.5, -9),
    (-54.25, 2.5, -14),
    (-54.625, 2.5, -19),
    (-53.25, 2.5, -14),
    (-52.875, 2.5, -9),
    (-52.5, 2.5, -14),
    (-52.875, 2.5, -19),
    (-51.5, 2.5, -14),
    (-51.125, 2.5, -9),
    (-50.75, 2.5, -14),
    (-51.125, 2.5, -19),
    (-49.75, 2.5, -14),
    (-49.375, 2.5, -9),
    (-49, 2.5, -14),
    (-49.375, 2.5, -19),
    (-48, 2.5, -14),
    (-47.625, 2.5, -9),
    (-47.25, 2.5, -14),
    (-47.625, 2.5, -19),
    (-19.125, 2.5, -19),
    (-19.5, 2.5, -14),
    (-19.125, 2.5, -9),
    (-18.75, 2.5, -14),
    (-8.625, 2.5, -19),
    (-9, 2.5, -14),
    (-8.625, 2.5, -9),
    (-8.25, 2.5, -14),
    (-17.375, 2.5, -19),
    (-17.75, 2.5, -14),
    (-17.375, 2.5, -9),
    (-17, 2.5, -14),
    (-15.625, 2.5, -9),
    (-15.25, 2.5, -14),
    (-15.625, 2.5, -19),
    (-16, 2.5, -14),
    (-13.875, 2.5, -9),
    (-13.5, 2.5, -14),
    (-13.875, 2.5, -19),
    (-14.25, 2.5, -14),
    (-56, 2.5, -14),
    (-56.375, 2.5, -19),
    (-56.75, 2.5, -14),
    (-56.375, 2.5, -9),
    (-46.25, 2.5, -14),
    (-45.875, 2.5, -9),
    (-45.5, 2.5, -14),
    (-45.875, 2.5, -19),
    (-12.125, 2.5, -9),
    (-11.75, 2.5, -14),
    (-12.125, 2.5, -19),
    (-12.5, 2.5, -14),
    (-10.375, 2.5, -19),
    (-10.75, 2.5, -14),
    (-10.375, 2.5, -9),
    (-10, 2.5, -14),
]))
fillet6.Radius = 0.25

doc.recompute()
